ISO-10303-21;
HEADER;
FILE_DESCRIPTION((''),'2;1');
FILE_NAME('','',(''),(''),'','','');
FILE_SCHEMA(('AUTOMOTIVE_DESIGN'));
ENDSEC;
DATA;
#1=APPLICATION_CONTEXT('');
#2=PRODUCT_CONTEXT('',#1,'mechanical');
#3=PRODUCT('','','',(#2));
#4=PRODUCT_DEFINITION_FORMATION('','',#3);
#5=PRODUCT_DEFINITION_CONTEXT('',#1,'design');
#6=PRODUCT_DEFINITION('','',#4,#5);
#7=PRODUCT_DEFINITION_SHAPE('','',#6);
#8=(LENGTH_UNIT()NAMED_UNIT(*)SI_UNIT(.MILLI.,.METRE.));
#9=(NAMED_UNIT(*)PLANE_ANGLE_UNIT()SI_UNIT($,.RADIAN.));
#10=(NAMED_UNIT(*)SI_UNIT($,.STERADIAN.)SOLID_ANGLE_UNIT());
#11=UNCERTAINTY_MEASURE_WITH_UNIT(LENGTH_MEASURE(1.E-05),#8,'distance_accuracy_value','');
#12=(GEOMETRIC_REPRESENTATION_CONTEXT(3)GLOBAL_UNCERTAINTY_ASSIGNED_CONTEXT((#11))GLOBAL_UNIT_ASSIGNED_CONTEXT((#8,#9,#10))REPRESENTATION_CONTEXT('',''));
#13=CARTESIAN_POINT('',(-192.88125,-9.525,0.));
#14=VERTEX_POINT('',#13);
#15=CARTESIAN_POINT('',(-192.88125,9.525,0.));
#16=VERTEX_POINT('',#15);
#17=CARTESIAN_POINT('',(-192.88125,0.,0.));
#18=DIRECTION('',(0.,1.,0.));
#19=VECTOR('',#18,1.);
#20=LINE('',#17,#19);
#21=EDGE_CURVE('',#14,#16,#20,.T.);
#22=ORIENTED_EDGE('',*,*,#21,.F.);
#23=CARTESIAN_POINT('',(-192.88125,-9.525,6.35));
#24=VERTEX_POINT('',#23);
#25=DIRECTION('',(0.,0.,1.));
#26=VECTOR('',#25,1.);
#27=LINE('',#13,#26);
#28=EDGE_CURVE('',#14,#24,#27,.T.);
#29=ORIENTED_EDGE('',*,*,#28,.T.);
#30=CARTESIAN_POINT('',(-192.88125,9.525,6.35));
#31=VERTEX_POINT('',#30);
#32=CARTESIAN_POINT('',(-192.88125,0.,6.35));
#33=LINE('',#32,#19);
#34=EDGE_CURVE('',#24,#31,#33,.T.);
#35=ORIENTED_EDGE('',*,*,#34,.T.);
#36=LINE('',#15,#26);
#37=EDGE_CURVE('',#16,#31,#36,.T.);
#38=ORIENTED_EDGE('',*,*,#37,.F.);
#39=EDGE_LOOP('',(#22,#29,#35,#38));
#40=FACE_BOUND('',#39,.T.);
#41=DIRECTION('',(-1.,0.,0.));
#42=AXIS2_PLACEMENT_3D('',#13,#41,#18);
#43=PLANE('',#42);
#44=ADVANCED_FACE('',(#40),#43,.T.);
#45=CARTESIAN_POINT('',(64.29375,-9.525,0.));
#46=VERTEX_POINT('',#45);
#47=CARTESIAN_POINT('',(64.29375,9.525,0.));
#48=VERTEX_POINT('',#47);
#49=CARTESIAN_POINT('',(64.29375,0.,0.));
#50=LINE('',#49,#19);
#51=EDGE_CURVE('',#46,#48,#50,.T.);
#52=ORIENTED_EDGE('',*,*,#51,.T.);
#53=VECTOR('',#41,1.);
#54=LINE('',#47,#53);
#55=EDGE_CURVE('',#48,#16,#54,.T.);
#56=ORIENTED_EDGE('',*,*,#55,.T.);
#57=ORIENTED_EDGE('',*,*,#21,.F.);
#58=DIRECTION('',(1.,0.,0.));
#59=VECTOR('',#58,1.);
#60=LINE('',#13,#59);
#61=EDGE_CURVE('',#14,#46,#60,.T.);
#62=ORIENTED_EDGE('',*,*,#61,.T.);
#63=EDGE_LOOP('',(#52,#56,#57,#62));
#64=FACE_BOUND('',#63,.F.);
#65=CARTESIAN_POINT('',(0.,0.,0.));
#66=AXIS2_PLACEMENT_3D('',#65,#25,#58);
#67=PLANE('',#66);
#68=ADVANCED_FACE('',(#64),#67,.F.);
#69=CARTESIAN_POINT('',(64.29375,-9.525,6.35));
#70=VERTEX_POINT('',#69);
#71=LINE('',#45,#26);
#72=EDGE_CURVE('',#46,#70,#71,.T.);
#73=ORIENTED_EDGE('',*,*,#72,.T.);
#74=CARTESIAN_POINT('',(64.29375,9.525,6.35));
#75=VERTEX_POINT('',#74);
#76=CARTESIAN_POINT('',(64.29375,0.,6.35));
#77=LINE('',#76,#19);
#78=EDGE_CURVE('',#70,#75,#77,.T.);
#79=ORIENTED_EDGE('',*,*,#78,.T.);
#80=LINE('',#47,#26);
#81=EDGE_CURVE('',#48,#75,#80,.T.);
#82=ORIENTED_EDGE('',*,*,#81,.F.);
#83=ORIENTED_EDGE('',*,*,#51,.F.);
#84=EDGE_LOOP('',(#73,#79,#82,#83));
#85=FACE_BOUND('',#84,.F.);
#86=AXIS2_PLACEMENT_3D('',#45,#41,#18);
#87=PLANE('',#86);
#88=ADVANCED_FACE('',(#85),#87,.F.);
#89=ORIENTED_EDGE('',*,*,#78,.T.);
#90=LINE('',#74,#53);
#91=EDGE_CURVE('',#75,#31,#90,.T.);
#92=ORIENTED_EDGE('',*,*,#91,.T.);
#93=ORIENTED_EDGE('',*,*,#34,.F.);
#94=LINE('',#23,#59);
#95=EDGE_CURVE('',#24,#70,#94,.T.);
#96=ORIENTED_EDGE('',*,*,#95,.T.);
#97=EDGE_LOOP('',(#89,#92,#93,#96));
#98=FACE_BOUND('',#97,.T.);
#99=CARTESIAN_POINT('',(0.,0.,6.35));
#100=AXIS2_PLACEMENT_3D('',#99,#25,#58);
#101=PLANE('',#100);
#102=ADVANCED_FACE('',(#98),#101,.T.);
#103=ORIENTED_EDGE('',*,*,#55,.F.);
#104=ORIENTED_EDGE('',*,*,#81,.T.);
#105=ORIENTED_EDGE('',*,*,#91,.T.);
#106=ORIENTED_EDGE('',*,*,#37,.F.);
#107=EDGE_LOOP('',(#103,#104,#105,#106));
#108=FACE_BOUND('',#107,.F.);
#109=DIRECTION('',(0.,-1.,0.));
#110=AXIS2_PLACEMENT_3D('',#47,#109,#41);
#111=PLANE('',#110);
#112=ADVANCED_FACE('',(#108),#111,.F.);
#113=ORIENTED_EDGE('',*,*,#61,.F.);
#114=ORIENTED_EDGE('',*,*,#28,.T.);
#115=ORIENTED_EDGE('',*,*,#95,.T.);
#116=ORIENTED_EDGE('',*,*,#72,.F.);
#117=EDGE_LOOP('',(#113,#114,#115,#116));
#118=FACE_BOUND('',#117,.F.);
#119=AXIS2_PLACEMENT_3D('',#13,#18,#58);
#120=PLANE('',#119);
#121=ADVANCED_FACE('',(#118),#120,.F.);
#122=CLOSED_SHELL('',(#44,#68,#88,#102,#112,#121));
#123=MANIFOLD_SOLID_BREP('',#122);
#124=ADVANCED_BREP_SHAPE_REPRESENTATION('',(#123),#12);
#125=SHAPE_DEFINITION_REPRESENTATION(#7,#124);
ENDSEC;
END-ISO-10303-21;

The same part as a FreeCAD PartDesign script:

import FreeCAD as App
import Part
import Sketcher

V = App.Vector
Q = App.Units.Quantity


def add_polygon(sketch, points):
    """Adds a closed chain of lines whose ends are joined by coincident constraints."""
    first, n = sketch.GeometryCount, len(points)
    for a, b in zip(points, points[1:] + points[:1]):
        sketch.addGeometry(Part.LineSegment(App.Vector(*a, 0), App.Vector(*b, 0)), False)
    for i in range(n):
        sketch.addConstraint(Sketcher.Constraint("Coincident", first + i, 2, first + (i + 1) % n, 1))

doc = App.newDocument("Part")
body = doc.addObject("PartDesign::Body", "Body")

# Sketch on XY plane
sketch1 = doc.addObject("Sketcher::SketchObject", "Sketch")
body.addObject(sketch1)
sketch1.AttachmentSupport = (doc.XY_Plane, [""])
sketch1.MapMode = "FlatFace"
add_polygon(sketch1, [(64.29375, -9.525), (64.29375, 9.525), (-192.88125, 9.525), (-192.88125, -9.525)])  # lines 0-3
sketch1.addConstraint(Sketcher.Constraint("Vertical", 0))
sketch1.addConstraint(Sketcher.Constraint("Horizontal", 1))
sketch1.addConstraint(Sketcher.Constraint("Vertical", 2))
sketch1.addConstraint(Sketcher.Constraint("Horizontal", 3))
sketch1.addConstraint(Sketcher.Constraint("DistanceY", 0, 1, 0, 2, Q("0.75 in")))
sketch1.addConstraint(Sketcher.Constraint("DistanceX", 1, 2, 1, 1, Q("10.125 in")))
sketch1.addConstraint(Sketcher.Constraint("DistanceX", -1, 1, 0, 2, Q("2.53125 in")))
sketch1.addConstraint(Sketcher.Constraint("DistanceY", -1, 1, 0, 2, Q("0.375 in")))
pad1 = doc.addObject("PartDesign::Pad", "Pad")
body.addObject(pad1)
pad1.Profile = sketch1
pad1.Length = Q("0.25 in")

doc.recompute()
